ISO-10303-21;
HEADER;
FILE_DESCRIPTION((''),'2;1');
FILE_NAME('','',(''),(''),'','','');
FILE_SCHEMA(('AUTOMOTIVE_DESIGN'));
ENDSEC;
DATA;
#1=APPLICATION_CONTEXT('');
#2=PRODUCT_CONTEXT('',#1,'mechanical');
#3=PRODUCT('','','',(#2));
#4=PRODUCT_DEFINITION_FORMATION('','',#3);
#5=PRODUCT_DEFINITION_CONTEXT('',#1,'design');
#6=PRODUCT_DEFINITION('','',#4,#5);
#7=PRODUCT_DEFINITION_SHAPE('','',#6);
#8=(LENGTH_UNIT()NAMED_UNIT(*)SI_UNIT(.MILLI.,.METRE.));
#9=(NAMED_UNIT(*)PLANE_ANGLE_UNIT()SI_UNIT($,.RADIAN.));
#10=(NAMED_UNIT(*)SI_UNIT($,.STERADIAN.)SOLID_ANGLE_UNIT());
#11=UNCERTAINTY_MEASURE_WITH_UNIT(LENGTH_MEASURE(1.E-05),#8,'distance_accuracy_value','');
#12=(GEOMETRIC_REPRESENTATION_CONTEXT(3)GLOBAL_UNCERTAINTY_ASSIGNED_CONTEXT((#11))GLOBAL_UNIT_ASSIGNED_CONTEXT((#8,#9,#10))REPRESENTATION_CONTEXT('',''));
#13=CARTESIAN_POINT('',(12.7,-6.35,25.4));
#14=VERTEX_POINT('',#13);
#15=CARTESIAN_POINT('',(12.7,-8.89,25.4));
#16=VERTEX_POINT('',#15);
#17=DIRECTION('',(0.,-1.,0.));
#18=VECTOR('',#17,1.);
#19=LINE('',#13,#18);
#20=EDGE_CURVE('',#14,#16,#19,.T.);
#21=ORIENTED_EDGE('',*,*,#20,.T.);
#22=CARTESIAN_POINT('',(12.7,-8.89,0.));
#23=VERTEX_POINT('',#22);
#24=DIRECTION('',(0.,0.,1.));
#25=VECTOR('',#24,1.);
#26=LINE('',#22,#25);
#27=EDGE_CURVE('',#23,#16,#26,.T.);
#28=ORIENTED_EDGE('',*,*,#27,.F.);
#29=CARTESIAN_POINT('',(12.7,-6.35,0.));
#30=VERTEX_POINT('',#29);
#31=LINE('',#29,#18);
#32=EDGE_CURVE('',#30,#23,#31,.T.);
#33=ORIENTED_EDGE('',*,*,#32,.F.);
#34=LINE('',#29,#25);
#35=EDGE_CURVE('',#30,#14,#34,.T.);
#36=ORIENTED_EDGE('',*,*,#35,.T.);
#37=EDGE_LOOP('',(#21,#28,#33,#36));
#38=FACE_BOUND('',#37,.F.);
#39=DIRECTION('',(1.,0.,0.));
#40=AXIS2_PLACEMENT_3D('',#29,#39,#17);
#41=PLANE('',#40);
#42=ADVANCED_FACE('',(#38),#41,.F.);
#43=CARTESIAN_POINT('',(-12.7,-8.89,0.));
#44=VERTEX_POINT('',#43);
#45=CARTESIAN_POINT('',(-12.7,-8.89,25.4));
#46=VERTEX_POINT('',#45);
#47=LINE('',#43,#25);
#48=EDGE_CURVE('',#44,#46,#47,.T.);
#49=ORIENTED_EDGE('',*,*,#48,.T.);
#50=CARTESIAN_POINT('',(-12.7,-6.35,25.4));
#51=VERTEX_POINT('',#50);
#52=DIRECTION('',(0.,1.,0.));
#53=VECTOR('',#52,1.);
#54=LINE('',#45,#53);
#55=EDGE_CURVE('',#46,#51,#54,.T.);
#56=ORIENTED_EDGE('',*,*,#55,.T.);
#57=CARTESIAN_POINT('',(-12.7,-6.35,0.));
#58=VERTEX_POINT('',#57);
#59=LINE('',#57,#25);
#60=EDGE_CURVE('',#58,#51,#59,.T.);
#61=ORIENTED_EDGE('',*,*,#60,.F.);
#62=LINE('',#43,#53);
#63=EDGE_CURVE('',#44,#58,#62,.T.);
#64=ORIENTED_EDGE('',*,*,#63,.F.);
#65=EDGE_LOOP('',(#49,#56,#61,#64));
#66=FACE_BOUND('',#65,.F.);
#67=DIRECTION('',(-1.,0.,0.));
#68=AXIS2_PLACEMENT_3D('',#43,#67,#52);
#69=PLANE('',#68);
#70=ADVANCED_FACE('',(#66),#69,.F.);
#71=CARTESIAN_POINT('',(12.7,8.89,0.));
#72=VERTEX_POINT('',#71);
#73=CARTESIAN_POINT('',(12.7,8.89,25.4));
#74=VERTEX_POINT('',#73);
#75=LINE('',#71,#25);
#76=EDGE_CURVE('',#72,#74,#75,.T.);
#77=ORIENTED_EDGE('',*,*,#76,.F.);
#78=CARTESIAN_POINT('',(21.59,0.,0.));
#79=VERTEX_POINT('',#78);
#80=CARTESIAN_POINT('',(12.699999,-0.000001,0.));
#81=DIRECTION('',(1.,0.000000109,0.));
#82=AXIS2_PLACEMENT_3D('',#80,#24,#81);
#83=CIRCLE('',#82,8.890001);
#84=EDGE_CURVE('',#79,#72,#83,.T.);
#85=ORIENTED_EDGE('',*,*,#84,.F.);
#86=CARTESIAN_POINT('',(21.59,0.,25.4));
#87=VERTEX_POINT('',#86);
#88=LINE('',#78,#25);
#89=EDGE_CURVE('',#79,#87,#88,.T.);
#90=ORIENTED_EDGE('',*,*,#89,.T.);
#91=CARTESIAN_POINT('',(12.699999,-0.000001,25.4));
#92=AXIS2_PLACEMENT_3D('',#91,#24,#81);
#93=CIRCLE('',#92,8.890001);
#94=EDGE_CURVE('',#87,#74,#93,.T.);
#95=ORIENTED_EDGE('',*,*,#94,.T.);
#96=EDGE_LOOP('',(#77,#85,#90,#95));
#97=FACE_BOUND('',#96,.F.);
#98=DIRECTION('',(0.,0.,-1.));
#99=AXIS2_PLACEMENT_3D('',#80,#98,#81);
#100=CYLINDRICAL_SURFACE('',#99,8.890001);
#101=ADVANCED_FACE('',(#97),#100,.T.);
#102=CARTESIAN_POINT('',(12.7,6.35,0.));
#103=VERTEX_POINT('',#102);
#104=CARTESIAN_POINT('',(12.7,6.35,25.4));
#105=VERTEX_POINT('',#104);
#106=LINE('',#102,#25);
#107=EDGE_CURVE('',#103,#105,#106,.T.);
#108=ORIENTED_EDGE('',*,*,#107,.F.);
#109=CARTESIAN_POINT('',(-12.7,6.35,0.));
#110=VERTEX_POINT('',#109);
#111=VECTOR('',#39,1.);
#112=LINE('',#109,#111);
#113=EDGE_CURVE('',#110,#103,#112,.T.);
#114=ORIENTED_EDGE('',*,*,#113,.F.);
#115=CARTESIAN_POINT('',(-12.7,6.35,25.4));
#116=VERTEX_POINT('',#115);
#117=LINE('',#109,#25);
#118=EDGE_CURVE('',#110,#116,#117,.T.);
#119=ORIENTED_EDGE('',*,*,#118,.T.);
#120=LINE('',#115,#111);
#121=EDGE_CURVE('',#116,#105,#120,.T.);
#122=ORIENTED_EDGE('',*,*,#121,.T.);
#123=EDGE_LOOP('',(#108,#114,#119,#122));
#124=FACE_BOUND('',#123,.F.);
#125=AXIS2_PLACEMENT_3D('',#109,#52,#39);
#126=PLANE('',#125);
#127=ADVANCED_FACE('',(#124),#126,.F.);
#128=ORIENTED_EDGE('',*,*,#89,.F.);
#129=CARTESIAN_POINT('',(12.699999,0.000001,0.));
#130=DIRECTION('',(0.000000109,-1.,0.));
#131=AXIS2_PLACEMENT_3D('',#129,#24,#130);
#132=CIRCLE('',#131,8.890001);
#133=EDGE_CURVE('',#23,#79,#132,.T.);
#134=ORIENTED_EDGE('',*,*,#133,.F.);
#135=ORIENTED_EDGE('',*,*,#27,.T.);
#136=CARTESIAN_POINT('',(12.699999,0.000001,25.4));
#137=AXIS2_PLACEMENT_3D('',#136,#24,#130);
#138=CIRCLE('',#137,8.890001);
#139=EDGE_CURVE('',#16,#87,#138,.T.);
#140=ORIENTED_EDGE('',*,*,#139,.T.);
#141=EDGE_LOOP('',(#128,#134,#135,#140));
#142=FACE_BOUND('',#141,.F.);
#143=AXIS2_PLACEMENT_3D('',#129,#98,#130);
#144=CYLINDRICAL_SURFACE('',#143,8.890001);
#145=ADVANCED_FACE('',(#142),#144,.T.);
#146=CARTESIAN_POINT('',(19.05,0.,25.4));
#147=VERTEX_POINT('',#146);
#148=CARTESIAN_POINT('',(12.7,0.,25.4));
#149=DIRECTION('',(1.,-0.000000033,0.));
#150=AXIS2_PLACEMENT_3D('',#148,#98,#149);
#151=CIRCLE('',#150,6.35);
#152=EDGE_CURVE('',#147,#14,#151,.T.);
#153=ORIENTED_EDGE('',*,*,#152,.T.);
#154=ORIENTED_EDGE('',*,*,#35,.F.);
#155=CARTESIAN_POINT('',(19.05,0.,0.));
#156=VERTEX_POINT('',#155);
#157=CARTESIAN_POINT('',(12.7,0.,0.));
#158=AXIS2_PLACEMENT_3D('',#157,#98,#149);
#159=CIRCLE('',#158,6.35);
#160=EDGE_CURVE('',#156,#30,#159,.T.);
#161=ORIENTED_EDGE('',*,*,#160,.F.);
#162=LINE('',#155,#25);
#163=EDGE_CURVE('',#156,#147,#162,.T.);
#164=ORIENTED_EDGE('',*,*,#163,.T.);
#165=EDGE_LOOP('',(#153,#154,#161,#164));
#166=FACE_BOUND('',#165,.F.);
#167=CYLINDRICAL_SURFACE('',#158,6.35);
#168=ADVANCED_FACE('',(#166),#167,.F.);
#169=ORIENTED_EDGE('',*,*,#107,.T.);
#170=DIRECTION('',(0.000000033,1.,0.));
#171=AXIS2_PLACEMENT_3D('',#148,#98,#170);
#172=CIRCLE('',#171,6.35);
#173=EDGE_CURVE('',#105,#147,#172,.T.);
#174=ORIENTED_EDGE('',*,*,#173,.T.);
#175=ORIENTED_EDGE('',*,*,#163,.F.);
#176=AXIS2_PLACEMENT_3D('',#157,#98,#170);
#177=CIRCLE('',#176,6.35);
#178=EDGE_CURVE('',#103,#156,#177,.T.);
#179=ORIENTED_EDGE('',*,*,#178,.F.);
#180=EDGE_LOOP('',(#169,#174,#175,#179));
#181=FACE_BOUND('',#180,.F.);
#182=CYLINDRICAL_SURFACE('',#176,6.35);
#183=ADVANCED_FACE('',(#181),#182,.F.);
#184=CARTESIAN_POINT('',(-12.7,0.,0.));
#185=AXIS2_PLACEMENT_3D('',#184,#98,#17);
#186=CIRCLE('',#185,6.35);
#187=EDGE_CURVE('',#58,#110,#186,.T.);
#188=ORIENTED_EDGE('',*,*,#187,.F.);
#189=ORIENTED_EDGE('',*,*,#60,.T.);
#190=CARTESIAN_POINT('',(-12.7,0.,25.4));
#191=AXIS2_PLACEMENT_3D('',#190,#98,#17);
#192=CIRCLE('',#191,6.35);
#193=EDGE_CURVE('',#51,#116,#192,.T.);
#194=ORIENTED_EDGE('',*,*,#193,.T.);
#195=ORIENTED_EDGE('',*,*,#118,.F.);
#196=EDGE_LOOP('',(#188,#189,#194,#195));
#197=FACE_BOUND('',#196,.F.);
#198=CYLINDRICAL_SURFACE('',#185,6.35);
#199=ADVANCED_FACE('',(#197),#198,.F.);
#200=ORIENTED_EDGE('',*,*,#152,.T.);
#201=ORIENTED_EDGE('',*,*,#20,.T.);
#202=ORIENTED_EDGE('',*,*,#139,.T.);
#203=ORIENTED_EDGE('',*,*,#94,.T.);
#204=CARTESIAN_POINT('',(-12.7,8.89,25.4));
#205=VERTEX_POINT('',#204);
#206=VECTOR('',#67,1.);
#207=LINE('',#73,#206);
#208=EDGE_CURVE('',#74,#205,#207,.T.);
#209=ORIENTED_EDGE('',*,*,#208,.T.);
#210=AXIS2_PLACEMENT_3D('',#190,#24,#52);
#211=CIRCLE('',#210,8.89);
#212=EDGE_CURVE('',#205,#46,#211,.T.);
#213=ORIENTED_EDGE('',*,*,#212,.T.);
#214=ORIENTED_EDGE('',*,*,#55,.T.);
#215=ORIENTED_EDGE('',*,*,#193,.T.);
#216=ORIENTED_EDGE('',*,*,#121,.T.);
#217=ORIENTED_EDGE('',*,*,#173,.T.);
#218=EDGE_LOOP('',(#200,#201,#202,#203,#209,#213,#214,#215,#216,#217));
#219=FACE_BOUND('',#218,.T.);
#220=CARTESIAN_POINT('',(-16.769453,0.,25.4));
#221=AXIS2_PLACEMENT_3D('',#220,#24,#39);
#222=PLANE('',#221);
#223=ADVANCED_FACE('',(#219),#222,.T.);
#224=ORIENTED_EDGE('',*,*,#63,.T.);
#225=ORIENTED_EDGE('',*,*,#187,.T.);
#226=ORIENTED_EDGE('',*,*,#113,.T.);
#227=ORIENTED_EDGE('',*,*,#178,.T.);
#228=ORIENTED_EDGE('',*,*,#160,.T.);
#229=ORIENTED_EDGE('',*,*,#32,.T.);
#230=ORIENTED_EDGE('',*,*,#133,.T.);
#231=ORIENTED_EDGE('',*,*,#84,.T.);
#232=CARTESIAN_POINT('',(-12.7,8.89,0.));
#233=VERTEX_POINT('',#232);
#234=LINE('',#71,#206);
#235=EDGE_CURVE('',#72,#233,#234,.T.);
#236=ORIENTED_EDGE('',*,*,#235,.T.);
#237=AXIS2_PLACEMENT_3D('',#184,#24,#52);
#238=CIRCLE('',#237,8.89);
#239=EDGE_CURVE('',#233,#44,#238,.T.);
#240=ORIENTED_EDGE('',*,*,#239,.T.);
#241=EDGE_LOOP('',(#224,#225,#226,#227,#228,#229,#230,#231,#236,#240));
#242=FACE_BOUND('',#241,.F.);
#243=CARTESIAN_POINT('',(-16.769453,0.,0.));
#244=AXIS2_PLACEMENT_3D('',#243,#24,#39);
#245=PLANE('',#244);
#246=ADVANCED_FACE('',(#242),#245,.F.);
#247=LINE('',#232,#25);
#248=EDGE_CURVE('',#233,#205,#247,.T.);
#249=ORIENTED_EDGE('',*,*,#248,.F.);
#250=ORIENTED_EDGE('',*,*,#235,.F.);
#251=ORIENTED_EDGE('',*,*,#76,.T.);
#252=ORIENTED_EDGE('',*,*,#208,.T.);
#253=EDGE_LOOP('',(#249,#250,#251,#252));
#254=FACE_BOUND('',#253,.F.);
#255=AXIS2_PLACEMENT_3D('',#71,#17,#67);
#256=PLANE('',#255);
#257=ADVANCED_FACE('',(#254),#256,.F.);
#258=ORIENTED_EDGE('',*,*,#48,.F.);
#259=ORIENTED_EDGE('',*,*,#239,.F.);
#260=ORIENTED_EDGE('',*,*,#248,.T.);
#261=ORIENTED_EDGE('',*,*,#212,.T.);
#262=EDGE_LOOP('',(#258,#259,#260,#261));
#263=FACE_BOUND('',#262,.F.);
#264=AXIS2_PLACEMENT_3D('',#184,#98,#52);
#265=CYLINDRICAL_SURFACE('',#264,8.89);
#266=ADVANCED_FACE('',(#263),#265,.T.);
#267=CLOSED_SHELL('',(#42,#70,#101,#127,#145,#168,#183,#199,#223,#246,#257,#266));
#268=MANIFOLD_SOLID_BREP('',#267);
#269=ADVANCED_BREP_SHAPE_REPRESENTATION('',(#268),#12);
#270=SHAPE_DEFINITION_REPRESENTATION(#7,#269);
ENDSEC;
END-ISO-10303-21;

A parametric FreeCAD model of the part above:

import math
import FreeCAD as App
import Part
import Sketcher
Q = App.Units.Quantity

doc = App.newDocument("Part")
body = doc.addObject("PartDesign::Body", "Body")

sketch1 = doc.addObject("Sketcher::SketchObject", "Sketch")
body.addObject(sketch1)
sketch1.AttachmentSupport = (doc.XY_Plane, [""])
sketch1.MapMode = "FlatFace"
sketch1.addGeometry([
    Part.ArcOfCircle(Part.Circle(App.Vector(-12.7, 0, 0), App.Vector(0, 0, 1), 8.9), math.radians(90), math.radians(270)),
    Part.LineSegment(App.Vector(-12.7, -8.9, 0), App.Vector(-12.7, -6.3, 0)),
    Part.ArcOfCircle(Part.Circle(App.Vector(-12.7, 0, 0), App.Vector(0, 0, 1), 6.3), math.radians(90), math.radians(270)),
    Part.LineSegment(App.Vector(-12.7, 6.3, 0), App.Vector(12.7, 6.3, 0)),
    Part.ArcOfCircle(Part.Circle(App.Vector(12.7, 0, 0), App.Vector(0, 0, 1), 6.4), math.radians(0), math.radians(90)),
    Part.ArcOfCircle(Part.Circle(App.Vector(12.7, 0, 0), App.Vector(0, 0, 1), 6.4), math.radians(-90), math.radians(0)),
    Part.LineSegment(App.Vector(12.7, -6.3, 0), App.Vector(12.7, -8.9, 0)),
    Part.ArcOfCircle(Part.Circle(App.Vector(12.7, 0, 0), App.Vector(0, 0, 1), 8.9), math.radians(-90), math.radians(0)),
    Part.ArcOfCircle(Part.Circle(App.Vector(12.7, 0, 0), App.Vector(0, 0, 1), 8.9), math.radians(0), math.radians(90)),
    Part.LineSegment(App.Vector(12.7, 8.9, 0), App.Vector(-12.7, 8.9, 0)),
], False)
sketch1.addConstraint([
    Sketcher.Constraint("Coincident", 0, 2, 1, 1),
    Sketcher.Constraint("Coincident", 1, 2, 2, 2),
    Sketcher.Constraint("Tangent", 2, 1, 3, 1),
    Sketcher.Constraint("Tangent", 3, 2, 4, 2),
    Sketcher.Constraint("Tangent", 4, 1, 5, 2),
    Sketcher.Constraint("Coincident", 5, 1, 6, 1),
    Sketcher.Constraint("Coincident", 6, 2, 7, 1),
    Sketcher.Constraint("Tangent", 7, 2, 8, 1),
    Sketcher.Constraint("Tangent", 8, 2, 9, 1),
    Sketcher.Constraint("Tangent", 9, 2, 0, 1),
    Sketcher.Constraint("Vertical", 1),
    Sketcher.Constraint("Horizontal", 3),
    Sketcher.Constraint("Vertical", 6),
    Sketcher.Constraint("Horizontal", 9),
    Sketcher.Constraint("Coincident", 2, 3, 0, 3),
    Sketcher.Constraint("Coincident", 7, 3, 4, 3),
    Sketcher.Constraint("Equal", 2, 4),
    Sketcher.Constraint("Equal", 4, 5),
    Sketcher.Constraint("Equal", 0, 7),
    Sketcher.Constraint("Symmetric", 0, 3, 4, 3, -1, 1),
    Sketcher.Constraint("PointOnObject", 4, 1, -1),
    Sketcher.Constraint("PointOnObject", 7, 2, -1),
    Sketcher.Constraint("Vertical", 2, 3, 0, 2),
    Sketcher.Constraint("Vertical", 3, 2, 5, 1),
    Sketcher.Constraint("DistanceX", 3, 1, 3, 2, Q("1 in")),
    Sketcher.Constraint("Radius", 0, Q("0.35 in")),
    Sketcher.Constraint("Radius", 2, Q("0.25 in")),
])
pad1 = doc.addObject("PartDesign::Pad", "Pad")
body.addObject(pad1)
pad1.Profile = sketch1
pad1.Length = Q("1 in")

doc.recompute()
